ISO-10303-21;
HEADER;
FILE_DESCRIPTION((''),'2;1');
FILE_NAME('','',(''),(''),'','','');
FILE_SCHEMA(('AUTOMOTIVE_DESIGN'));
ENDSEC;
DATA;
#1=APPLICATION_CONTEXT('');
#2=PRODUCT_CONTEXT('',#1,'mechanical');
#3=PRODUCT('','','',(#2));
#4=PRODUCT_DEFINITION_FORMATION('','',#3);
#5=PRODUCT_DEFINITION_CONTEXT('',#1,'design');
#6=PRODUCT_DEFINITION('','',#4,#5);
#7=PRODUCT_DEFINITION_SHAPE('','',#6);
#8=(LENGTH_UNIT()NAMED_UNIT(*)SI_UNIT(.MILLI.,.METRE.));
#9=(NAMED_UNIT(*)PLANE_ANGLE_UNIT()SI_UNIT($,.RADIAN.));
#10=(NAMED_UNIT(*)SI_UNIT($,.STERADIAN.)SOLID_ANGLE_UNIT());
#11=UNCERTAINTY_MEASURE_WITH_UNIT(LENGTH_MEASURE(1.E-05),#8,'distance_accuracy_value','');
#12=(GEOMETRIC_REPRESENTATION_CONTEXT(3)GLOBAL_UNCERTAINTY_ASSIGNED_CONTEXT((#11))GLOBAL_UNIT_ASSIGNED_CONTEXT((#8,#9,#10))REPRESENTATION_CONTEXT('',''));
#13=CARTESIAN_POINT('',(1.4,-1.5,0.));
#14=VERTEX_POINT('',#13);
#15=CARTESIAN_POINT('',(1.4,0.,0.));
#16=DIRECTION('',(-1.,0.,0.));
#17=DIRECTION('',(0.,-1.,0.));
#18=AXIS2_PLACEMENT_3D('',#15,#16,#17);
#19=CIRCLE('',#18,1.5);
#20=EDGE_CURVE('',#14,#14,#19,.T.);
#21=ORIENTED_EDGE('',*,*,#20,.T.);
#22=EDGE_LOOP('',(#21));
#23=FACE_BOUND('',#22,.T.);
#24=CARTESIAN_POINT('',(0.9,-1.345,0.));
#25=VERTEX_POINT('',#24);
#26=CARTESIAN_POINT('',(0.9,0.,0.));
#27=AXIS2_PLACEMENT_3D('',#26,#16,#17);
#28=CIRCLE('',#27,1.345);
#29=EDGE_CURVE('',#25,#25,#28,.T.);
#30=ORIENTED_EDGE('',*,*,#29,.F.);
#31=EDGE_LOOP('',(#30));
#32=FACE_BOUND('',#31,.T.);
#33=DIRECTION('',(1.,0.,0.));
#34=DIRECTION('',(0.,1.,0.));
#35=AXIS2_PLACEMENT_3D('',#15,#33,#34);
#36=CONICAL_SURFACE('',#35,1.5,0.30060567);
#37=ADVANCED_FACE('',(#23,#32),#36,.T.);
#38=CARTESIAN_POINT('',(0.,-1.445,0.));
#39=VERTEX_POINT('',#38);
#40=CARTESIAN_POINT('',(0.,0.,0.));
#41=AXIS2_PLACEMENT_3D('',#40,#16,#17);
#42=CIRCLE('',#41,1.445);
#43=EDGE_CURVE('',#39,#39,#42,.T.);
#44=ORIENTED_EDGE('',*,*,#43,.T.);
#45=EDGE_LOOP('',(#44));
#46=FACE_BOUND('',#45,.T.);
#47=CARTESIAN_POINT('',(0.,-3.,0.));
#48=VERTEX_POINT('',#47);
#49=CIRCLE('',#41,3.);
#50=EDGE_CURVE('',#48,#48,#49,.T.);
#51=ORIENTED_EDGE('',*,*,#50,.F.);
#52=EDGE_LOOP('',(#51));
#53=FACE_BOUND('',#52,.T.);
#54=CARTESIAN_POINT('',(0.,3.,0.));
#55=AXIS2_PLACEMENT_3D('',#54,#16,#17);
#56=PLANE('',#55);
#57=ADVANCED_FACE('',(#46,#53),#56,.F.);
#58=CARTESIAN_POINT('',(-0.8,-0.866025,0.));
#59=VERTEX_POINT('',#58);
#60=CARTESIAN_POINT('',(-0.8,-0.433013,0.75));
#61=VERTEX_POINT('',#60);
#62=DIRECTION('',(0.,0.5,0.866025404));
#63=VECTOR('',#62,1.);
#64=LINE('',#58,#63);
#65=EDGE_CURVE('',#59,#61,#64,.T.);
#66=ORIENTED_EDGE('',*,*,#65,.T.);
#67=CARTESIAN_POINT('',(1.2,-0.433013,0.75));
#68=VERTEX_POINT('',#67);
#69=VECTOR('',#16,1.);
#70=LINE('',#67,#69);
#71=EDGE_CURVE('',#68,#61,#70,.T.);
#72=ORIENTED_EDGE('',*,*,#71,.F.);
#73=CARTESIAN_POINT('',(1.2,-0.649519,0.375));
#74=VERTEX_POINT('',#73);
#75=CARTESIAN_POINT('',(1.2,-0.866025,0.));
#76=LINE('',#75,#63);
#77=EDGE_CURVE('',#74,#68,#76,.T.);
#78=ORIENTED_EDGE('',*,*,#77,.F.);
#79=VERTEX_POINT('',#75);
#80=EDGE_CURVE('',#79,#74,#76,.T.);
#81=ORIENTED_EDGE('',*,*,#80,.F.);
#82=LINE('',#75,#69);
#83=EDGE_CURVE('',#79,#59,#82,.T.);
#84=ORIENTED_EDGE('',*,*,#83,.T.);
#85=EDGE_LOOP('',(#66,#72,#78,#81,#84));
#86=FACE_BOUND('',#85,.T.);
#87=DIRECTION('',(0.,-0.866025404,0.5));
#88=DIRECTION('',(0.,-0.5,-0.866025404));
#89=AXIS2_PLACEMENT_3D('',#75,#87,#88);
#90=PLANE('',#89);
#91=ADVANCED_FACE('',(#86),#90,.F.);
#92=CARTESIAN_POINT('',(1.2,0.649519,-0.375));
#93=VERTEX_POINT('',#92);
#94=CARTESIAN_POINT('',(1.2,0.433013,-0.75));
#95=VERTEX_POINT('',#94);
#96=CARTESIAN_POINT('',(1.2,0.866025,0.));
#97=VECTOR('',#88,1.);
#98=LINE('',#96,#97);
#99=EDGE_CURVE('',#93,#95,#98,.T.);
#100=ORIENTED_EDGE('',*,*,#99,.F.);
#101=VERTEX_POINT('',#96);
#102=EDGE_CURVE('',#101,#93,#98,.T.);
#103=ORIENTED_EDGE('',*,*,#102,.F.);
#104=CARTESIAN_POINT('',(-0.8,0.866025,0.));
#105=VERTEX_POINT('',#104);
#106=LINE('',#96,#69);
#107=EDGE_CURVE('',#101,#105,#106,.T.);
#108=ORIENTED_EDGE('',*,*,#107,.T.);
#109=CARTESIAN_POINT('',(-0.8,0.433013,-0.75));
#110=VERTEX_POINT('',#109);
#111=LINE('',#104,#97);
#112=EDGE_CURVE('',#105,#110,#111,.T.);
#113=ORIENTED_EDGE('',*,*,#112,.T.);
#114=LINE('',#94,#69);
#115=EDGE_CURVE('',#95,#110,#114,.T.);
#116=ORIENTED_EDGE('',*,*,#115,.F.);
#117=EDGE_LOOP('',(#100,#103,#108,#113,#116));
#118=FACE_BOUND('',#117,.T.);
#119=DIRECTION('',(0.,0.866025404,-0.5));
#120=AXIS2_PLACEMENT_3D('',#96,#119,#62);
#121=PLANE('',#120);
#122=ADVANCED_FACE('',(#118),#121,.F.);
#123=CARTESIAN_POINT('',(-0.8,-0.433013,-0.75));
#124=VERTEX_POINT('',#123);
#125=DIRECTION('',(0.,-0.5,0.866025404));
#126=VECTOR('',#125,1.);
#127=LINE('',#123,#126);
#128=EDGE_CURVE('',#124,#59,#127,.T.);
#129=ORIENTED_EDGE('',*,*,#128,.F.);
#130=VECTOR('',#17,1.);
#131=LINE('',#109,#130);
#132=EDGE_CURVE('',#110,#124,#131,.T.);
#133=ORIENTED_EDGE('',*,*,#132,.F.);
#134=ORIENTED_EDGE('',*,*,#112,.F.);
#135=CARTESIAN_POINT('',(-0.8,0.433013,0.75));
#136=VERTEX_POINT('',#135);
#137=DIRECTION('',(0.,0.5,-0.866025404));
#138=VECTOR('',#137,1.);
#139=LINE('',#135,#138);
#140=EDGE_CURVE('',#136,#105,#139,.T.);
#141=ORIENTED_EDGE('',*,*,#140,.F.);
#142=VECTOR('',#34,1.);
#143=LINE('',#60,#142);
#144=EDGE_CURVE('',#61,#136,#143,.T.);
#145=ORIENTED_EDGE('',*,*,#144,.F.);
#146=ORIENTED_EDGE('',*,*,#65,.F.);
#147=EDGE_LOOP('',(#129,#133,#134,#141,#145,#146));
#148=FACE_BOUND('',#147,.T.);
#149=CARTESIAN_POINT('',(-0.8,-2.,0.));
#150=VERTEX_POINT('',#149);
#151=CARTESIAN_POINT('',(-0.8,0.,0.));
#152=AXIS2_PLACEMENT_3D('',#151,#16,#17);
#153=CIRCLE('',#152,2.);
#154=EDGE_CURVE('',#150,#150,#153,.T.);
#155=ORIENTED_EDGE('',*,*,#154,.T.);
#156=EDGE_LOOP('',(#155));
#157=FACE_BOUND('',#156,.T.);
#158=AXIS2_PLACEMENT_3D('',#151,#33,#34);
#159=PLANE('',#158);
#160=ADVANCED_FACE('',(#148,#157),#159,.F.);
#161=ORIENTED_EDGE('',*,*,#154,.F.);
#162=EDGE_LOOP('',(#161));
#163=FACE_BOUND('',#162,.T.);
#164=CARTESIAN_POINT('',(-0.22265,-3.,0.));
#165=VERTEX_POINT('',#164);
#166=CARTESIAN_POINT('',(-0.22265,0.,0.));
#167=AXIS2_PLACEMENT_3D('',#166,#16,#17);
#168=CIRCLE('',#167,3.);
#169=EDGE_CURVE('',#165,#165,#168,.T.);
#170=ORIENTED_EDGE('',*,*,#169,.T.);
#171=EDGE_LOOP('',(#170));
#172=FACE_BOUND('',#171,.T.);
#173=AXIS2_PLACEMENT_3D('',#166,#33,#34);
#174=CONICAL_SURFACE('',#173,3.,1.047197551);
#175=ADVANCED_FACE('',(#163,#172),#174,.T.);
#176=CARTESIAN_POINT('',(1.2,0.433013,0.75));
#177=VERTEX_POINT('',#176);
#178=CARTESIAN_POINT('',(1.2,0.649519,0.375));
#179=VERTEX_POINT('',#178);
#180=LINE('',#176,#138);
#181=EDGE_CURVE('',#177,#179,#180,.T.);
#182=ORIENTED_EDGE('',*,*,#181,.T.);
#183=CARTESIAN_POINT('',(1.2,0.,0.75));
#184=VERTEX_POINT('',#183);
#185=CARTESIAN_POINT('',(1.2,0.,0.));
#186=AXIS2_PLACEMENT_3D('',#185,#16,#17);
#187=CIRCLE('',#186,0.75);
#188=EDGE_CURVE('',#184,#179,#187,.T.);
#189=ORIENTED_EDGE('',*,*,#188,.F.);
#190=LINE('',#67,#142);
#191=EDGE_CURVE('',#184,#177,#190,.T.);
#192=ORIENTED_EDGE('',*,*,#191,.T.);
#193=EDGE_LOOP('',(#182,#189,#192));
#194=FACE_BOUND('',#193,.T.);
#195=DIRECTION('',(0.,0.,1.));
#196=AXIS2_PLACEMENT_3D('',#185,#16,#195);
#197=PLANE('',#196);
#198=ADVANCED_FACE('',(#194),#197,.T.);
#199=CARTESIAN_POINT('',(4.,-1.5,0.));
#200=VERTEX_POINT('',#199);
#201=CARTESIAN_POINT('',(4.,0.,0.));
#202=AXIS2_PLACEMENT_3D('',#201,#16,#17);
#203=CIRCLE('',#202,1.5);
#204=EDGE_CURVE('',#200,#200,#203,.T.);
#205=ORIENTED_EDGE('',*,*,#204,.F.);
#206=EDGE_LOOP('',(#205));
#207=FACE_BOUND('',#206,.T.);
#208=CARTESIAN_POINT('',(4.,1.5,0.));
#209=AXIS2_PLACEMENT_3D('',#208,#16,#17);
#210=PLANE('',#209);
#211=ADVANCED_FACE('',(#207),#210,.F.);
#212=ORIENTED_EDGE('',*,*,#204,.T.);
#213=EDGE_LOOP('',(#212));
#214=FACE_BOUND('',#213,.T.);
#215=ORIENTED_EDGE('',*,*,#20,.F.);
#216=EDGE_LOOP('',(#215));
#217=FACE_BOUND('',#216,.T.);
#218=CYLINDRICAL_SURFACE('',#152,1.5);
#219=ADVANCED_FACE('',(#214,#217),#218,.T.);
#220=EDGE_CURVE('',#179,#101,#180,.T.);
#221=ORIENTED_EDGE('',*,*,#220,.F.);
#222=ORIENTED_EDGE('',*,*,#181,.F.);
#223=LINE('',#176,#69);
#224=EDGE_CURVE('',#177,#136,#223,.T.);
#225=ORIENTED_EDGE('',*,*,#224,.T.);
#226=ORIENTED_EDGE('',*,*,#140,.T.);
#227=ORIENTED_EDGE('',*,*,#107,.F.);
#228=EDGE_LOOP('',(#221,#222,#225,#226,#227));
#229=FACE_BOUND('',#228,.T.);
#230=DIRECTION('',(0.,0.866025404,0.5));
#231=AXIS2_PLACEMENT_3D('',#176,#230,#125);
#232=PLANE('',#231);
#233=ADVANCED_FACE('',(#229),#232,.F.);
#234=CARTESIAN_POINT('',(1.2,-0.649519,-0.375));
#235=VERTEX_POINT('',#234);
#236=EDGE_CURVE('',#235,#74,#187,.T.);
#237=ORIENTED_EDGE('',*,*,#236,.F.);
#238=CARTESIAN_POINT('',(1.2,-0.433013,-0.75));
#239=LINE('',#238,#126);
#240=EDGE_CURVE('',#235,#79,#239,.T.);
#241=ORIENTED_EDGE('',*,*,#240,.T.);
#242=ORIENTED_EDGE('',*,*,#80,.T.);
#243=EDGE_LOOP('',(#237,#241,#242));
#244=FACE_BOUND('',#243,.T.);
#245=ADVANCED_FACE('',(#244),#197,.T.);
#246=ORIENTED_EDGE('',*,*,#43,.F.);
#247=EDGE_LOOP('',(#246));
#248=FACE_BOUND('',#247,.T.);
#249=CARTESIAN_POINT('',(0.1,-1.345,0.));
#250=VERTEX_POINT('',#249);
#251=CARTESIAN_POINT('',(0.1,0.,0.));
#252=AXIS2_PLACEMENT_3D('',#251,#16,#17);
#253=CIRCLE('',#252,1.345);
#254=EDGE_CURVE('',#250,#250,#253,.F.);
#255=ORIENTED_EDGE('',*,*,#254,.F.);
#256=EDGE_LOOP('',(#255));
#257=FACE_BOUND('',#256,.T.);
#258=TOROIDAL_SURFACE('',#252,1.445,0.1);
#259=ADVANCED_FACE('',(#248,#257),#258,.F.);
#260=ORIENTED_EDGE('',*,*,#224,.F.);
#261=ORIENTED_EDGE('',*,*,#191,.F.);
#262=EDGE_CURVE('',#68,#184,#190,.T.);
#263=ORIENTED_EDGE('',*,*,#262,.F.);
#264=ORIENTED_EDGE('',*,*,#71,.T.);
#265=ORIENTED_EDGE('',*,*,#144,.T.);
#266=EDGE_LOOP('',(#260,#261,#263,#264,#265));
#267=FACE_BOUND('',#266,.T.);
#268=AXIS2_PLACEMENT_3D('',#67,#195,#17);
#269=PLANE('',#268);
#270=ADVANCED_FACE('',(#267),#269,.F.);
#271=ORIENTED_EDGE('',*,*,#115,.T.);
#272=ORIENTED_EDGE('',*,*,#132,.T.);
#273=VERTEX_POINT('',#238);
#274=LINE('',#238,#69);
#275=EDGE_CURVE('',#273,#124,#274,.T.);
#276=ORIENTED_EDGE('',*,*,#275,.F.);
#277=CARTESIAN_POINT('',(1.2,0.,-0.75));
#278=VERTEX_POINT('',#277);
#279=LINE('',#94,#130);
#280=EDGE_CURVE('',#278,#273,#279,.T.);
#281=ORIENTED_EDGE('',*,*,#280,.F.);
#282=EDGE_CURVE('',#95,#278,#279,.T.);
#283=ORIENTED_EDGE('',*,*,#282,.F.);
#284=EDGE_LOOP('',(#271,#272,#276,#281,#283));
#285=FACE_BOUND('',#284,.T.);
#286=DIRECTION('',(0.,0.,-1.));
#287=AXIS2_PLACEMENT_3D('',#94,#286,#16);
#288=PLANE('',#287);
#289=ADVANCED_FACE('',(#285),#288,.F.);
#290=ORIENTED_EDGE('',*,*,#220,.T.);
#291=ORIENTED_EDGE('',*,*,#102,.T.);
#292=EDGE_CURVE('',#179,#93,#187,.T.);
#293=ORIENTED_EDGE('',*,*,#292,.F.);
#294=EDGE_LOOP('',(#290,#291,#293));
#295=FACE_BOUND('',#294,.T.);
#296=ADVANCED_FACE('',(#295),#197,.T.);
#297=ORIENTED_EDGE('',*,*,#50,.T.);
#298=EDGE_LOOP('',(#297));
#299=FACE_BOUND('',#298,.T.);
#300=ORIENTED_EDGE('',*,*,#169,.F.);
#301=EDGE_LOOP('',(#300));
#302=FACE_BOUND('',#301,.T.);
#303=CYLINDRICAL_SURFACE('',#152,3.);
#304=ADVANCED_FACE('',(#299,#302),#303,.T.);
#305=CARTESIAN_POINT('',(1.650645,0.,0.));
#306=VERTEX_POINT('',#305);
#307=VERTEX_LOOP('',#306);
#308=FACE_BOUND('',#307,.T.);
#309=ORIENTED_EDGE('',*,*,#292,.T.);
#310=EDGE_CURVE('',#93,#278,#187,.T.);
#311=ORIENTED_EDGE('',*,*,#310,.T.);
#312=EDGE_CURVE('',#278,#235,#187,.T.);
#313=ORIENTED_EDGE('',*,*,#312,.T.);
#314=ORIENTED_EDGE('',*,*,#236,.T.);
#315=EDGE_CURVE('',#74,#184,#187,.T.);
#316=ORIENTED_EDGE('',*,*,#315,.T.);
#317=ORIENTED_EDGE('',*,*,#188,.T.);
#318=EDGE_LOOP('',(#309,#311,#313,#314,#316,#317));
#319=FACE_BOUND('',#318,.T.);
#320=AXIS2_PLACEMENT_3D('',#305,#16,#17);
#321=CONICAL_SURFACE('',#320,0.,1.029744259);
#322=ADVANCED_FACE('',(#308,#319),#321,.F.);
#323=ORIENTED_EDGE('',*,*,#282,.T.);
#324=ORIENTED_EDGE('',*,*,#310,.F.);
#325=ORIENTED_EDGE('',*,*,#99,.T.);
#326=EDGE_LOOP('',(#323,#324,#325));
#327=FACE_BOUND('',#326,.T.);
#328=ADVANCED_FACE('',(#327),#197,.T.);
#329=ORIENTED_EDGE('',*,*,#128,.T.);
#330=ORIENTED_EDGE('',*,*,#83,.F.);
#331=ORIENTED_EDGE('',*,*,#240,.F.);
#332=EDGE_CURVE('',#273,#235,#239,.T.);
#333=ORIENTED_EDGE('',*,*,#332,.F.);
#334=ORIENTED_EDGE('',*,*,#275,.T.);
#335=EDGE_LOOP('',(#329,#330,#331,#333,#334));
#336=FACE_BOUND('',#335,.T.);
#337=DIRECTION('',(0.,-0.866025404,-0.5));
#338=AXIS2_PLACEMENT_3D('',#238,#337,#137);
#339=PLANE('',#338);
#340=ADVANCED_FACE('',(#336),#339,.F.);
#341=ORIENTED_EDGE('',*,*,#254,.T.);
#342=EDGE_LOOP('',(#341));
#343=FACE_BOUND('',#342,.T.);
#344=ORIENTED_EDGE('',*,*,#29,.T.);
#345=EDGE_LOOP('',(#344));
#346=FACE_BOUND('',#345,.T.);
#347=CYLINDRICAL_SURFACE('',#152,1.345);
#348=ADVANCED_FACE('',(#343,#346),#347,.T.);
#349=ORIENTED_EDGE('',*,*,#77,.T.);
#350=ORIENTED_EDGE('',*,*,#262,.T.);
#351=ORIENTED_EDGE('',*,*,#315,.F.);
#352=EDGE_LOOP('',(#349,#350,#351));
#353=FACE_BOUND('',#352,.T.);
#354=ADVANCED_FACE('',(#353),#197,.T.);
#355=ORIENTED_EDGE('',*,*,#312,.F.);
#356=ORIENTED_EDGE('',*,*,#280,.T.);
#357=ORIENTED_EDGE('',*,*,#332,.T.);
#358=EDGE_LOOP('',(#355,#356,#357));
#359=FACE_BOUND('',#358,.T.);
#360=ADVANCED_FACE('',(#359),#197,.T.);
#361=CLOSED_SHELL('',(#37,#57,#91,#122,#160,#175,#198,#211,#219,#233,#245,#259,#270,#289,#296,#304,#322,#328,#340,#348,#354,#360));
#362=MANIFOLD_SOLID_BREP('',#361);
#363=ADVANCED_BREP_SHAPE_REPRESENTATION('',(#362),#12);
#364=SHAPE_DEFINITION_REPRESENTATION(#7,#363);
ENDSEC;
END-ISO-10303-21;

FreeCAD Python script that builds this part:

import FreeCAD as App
import Part
import Sketcher
from FreeCAD import Vector
Q = App.Units.Quantity


def edges_at(feature, points):
    """Names of the edges that pass closest to the given points."""
    edges = feature.Shape.Edges
    near = lambda p: min(range(len(edges)), key=lambda i: edges[i].distToShape(Part.Vertex(*p))[0])
    return sorted({f"Edge{near(p) + 1}" for p in points})

doc = App.newDocument("Part")
params = doc.addObject("Spreadsheet::Sheet", "Params")
for row, (alias, value) in enumerate([
    ("sketch1_height", "2 mm"),
    ("sketch1_width", "4.8 mm"),
    ("sketch1_width2", "2.6 mm"),
    ("sketch1_width3", "0.9 mm"),
    ("sketch1_height2", "1.5 mm"),
    ("revolution_angle", "360 deg"),
    ("fillet_radius", "0.1 mm"),
    ("pocket1_length", "2 mm"),
    ("sketch3_height", "0.75 mm"),
    ("groove_angle", "360 deg"),
], start=1):
    params.set(f"A{row}", alias)
    params.set(f"B{row}", "=" + value)
    params.setAlias(f"B{row}", alias)

body = doc.addObject("PartDesign::Body", "Body")

sketch1 = body.newObject("Sketcher::SketchObject", "Sketch")
sketch1.AttachmentSupport = (doc.getObject("XY_Plane"), [""])
sketch1.MapMode = "FlatFace"
sketch1.addGeometry([
    Part.LineSegment(Vector(-0.8, 2, 0), Vector(-0.8, 0, 0)),
    Part.LineSegment(Vector(-0.8, 0, 0), Vector(4, 0, 0)),
    Part.LineSegment(Vector(4, 0, 0), Vector(4, 1.5, 0)),
    Part.LineSegment(Vector(4, 1.5, 0), Vector(1.4, 1.5, 0)),
    Part.LineSegment(Vector(1.4, 1.5, 0), Vector(0.9, 1.34, 0)),
    Part.LineSegment(Vector(0.9, 1.34, 0), Vector(0, 1.34, 0)),
    Part.LineSegment(Vector(0, 1.34, 0), Vector(0, 3, 0)),
    Part.LineSegment(Vector(0, 3, 0), Vector(-0.22, 3, 0)),
    Part.LineSegment(Vector(-0.22, 3, 0), Vector(-0.8, 2, 0)),
], False)
sketch1.addConstraint([
    Sketcher.Constraint("Coincident", 0, 2, 1, 1),
    Sketcher.Constraint("Coincident", 1, 2, 2, 1),
    Sketcher.Constraint("Coincident", 2, 2, 3, 1),
    Sketcher.Constraint("Coincident", 3, 2, 4, 1),
    Sketcher.Constraint("Coincident", 4, 2, 5, 1),
    Sketcher.Constraint("Coincident", 5, 2, 6, 1),
    Sketcher.Constraint("Coincident", 6, 2, 7, 1),
    Sketcher.Constraint("Coincident", 7, 2, 8, 1),
    Sketcher.Constraint("Coincident", 8, 2, 0, 1),
    Sketcher.Constraint("Vertical", 0),
    Sketcher.Constraint("Horizontal", 1),
    Sketcher.Constraint("Vertical", 2),
    Sketcher.Constraint("Horizontal", 3),
    Sketcher.Constraint("Horizontal", 5),
    Sketcher.Constraint("Vertical", 6),
    Sketcher.Constraint("Horizontal", 7),
    Sketcher.Constraint("PointOnObject", 0, 2, -1),
    Sketcher.Constraint("PointOnObject", 5, 2, -2),
    Sketcher.Constraint("DistanceY", 0, 2, 0, 1, Q("2 mm")),
    Sketcher.Constraint("Angle", 8, Q("-120 deg")),
    Sketcher.Constraint("DistanceX", 1, 1, 1, 2, Q("4.8 mm")),
    Sketcher.Constraint("DistanceX", 3, 2, 3, 1, Q("2.6 mm")),
    Sketcher.Constraint("DistanceX", 5, 2, 5, 1, Q("0.9 mm")),
    Sketcher.Constraint("DistanceY", 2, 1, 2, 2, Q("1.5 mm")),
    Sketcher.Constraint("DistanceX", -1, 1, 1, 2, Q("4 mm")),
    Sketcher.Constraint("DistanceY", -1, 1, 6, 2, Q("3 mm")),
    Sketcher.Constraint("DistanceY", 6, 1, 6, 2, Q("1.655 mm")),
])
sketch1.setExpression("Constraints[18]", "Params.sketch1_height")
sketch1.setExpression("Constraints[20]", "Params.sketch1_width")
sketch1.setExpression("Constraints[21]", "Params.sketch1_width2")
sketch1.setExpression("Constraints[22]", "Params.sketch1_width3")
sketch1.setExpression("Constraints[23]", "Params.sketch1_height2")
revolution = body.newObject("PartDesign::Revolution", "Revolution")
revolution.Profile = sketch1
revolution.ReferenceAxis = (sketch1, ["H_Axis"])
revolution.setExpression("Angle", "Params.revolution_angle")
doc.recompute()

fillet = body.newObject("PartDesign::Fillet", "Fillet")
fillet.Base = (revolution, edges_at(revolution, [(0, 1.345, 0)]))
fillet.setExpression("Radius", "Params.fillet_radius")

sketch2 = body.newObject("Sketcher::SketchObject", "Sketch001")
sketch2.AttachmentSupport = (doc.getObject("YZ_Plane"), [""])
sketch2.MapMode = "FlatFace"
sketch2.AttachmentOffset = App.Placement(Vector(0, 0, -0.8), App.Rotation())
sketch2.addGeometry([
    Part.LineSegment(Vector(0.9, 0, 0), Vector(0.4, -0.8, 0)),
    Part.LineSegment(Vector(0.4, -0.8, 0), Vector(-0.4, -0.8, 0)),
    Part.LineSegment(Vector(-0.4, -0.8, 0), Vector(-0.9, 0, 0)),
    Part.LineSegment(Vector(-0.9, 0, 0), Vector(-0.4, 0.8, 0)),
    Part.LineSegment(Vector(-0.4, 0.8, 0), Vector(0.4, 0.8, 0)),
    Part.LineSegment(Vector(0.4, 0.8, 0), Vector(0.9, 0, 0)),
], False)
sketch2.addConstraint([
    Sketcher.Constraint("Coincident", 0, 2, 1, 1),
    Sketcher.Constraint("Coincident", 1, 2, 2, 1),
    Sketcher.Constraint("Coincident", 2, 2, 3, 1),
    Sketcher.Constraint("Coincident", 3, 2, 4, 1),
    Sketcher.Constraint("Coincident", 4, 2, 5, 1),
    Sketcher.Constraint("Coincident", 5, 2, 0, 1),
    Sketcher.Constraint("Horizontal", 1),
    Sketcher.Constraint("Horizontal", 4),
    Sketcher.Constraint("Symmetric", 0, 2, 3, 2, -1, 1),
    Sketcher.Constraint("Symmetric", 2, 2, 5, 2, -1, 1),
    Sketcher.Constraint("PointOnObject", 2, 2, -1),
    Sketcher.Constraint("Parallel", 2, 5),
    Sketcher.Constraint("Vertical", 1, 2, 3, 2),
    Sketcher.Constraint("Angle", 0, Q("-120 deg")),
    Sketcher.Constraint("DistanceY", 1, 2, 3, 2, Q("1.5 mm")),
    Sketcher.Constraint("DistanceX", 1, 2, 1, 1, Q("0.866025 mm")),
])
pocket1 = body.newObject("PartDesign::Pocket", "Pocket")
pocket1.Profile = sketch2
pocket1.setExpression("Length", "Params.pocket1_length")
pocket1.Reversed = True

sketch3 = body.newObject("Sketcher::SketchObject", "Sketch002")
sketch3.AttachmentSupport = (doc.getObject("XY_Plane"), [""])
sketch3.MapMode = "FlatFace"
sketch3.addGeometry([
    Part.LineSegment(Vector(1.2, 0.75, 0), Vector(1.2, 0, 0)),
    Part.LineSegment(Vector(1.2, 0, 0), Vector(1.65, 0, 0)),
    Part.LineSegment(Vector(1.65, 0, 0), Vector(1.2, 0.75, 0)),
], False)
sketch3.addConstraint([
    Sketcher.Constraint("Coincident", 0, 2, 1, 1),
    Sketcher.Constraint("Coincident", 1, 2, 2, 1),
    Sketcher.Constraint("Coincident", 2, 2, 0, 1),
    Sketcher.Constraint("Vertical", 0),
    Sketcher.Constraint("Horizontal", 1),
    Sketcher.Constraint("PointOnObject", 0, 2, -1),
    Sketcher.Constraint("Angle", 2, Q("121 deg")),
    Sketcher.Constraint("DistanceY", 0, 2, 0, 1, Q("0.75 mm")),
    Sketcher.Constraint("DistanceX", -1, 1, 0, 2, Q("1.2 mm")),
])
sketch3.setExpression("Constraints[7]", "Params.sketch3_height")
groove = body.newObject("PartDesign::Groove", "Groove")
groove.Profile = sketch3
groove.ReferenceAxis = (sketch3, ["H_Axis"])
groove.setExpression("Angle", "Params.groove_angle")

doc.recompute()
